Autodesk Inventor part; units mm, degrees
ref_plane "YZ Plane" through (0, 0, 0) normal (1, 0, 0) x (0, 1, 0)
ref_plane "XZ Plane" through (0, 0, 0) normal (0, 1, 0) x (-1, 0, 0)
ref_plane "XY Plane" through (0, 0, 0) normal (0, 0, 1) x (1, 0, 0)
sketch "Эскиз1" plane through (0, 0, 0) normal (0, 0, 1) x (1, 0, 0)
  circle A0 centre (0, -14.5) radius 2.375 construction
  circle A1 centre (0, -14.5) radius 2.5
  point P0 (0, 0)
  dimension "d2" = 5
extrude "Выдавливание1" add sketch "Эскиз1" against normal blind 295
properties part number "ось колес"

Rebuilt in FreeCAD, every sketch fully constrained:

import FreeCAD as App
import Part
import Sketcher

V = App.Vector
Q = App.Units.Quantity

doc = App.newDocument("Part")
params = doc.addObject("Spreadsheet::Sheet", "Params")
for row, (alias, value) in enumerate([
    ("sketch1_diameter", "5 mm"),
    ("pad1_length", "295 mm"),
], start=1):
    params.set(f"A{row}", alias)
    params.set(f"B{row}", "=" + value)
    params.setAlias(f"B{row}", alias)

body = doc.addObject("PartDesign::Body", "Body")

# Sketch on XY plane
sketch1 = body.newObject("Sketcher::SketchObject", "Sketch")
sketch1.AttachmentSupport = (doc.getObject("XY_Plane"), [""])
sketch1.MapMode = "FlatFace"
sketch1.addGeometry(Part.Circle(V(0, -14.5, 0), V(0, 0, 1), 2.5), False)
sketch1.addConstraint([
    Sketcher.Constraint("PointOnObject", 0, 3, -2),
    Sketcher.Constraint("Diameter", 0, Q("5 mm")),
    Sketcher.Constraint("DistanceY", 0, 3, -1, 1, Q("14.5 mm")),
])
sketch1.setExpression("Constraints[1]", "Params.sketch1_diameter")
pad1 = body.newObject("PartDesign::Pad", "Pad")
pad1.Profile = sketch1
pad1.setExpression("Length", "Params.pad1_length")
pad1.Reversed = True

doc.recompute()
